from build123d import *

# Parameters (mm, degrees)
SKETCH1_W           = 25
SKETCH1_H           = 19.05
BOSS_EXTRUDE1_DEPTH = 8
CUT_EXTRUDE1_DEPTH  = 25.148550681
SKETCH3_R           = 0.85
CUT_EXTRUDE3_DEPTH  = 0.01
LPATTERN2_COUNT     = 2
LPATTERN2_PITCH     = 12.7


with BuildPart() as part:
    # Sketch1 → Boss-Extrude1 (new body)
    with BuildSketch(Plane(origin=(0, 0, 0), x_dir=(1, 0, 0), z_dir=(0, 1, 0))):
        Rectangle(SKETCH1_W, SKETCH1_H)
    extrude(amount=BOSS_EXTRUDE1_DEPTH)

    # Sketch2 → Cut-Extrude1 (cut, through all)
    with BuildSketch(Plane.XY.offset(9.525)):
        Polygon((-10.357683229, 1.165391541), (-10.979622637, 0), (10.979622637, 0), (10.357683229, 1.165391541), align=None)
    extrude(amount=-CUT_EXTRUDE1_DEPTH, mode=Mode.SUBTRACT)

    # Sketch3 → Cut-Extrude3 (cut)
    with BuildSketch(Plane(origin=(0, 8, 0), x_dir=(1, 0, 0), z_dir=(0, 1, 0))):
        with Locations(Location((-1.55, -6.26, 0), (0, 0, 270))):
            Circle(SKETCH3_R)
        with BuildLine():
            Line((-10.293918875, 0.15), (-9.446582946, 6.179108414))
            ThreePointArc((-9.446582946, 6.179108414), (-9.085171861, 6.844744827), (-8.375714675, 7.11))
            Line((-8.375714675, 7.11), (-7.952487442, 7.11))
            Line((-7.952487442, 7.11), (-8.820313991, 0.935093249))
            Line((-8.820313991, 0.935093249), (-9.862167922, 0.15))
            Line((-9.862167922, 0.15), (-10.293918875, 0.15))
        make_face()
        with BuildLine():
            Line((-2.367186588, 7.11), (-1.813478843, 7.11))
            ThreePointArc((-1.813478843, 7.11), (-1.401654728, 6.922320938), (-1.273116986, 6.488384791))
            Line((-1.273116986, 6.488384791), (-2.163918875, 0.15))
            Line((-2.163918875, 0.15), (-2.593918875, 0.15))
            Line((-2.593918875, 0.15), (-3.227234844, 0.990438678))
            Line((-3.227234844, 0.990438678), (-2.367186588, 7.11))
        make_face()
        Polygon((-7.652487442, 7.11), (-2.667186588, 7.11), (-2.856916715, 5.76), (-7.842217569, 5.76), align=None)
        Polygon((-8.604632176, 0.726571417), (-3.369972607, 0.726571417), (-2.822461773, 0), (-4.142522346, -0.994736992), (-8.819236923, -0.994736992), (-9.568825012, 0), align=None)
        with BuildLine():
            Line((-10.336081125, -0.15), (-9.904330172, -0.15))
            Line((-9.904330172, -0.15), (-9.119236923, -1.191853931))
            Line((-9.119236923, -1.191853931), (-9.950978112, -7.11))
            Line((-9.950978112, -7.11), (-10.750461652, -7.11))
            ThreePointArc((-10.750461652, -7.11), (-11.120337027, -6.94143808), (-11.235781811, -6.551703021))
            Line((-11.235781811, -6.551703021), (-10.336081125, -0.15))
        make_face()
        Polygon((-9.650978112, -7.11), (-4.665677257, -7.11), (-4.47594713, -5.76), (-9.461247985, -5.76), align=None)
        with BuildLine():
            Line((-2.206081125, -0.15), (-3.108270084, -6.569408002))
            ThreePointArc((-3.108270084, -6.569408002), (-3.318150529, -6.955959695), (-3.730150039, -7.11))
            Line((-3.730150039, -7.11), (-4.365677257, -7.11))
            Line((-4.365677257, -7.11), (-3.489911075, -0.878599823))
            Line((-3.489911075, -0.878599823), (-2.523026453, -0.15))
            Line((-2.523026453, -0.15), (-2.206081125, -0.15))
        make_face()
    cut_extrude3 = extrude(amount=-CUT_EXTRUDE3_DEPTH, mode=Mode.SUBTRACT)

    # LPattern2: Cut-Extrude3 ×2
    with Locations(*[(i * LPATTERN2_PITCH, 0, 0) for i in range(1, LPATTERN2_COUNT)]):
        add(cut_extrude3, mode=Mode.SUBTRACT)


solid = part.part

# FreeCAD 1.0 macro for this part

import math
import FreeCAD as App
import Part
import Sketcher
Q = App.Units.Quantity


def add_polygon(sketch, points):
    """Adds a closed chain of lines whose ends are joined by coincident constraints."""
    first, n = sketch.GeometryCount, len(points)
    for a, b in zip(points, points[1:] + points[:1]):
        sketch.addGeometry(Part.LineSegment(App.Vector(*a, 0), App.Vector(*b, 0)), False)
    for i in range(n):
        sketch.addConstraint(Sketcher.Constraint("Coincident", first + i, 2, first + (i + 1) % n, 1))

doc = App.newDocument("Part")
body = doc.addObject("PartDesign::Body", "Body")

sketch1 = body.newObject("Sketcher::SketchObject", "Sketch")
sketch1.AttachmentSupport = (doc.getObject("XZ_Plane"), [""])
sketch1.MapMode = "FlatFace"
add_polygon(sketch1, [(-12, -10), (-12, 10), (12, 10), (12, -10)])
sketch1.addConstraint([
    Sketcher.Constraint("Vertical", 0),
    Sketcher.Constraint("Horizontal", 1),
    Sketcher.Constraint("Vertical", 2),
    Sketcher.Constraint("Horizontal", 3),
    Sketcher.Constraint("Symmetric", 0, 2, 2, 2, -1, 1),
    Sketcher.Constraint("DistanceX", 1, 1, 1, 2, 25.0),
    Sketcher.Constraint("DistanceY", 0, 1, 0, 2, 19.05),
])
pad1 = body.newObject("PartDesign::Pad", "Pad")
pad1.Profile = sketch1
pad1.Length = 8
pad1.Reversed = True

sketch2 = body.newObject("Sketcher::SketchObject", "Sketch001")
sketch2.AttachmentSupport = (doc.getObject("XY_Plane"), [""])
sketch2.MapMode = "FlatFace"
sketch2.AttachmentOffset = App.Placement(App.Vector(0, 0, 9.525), App.Rotation())
add_polygon(sketch2, [(-10.4, 1.2), (-11, 0), (11, 0), (10.4, 1.2)])
sketch2.addConstraint([
    Sketcher.Constraint("Horizontal", 1),
    Sketcher.Constraint("Horizontal", 3),
    Sketcher.Constraint("Symmetric", 0, 2, 1, 2, -1, 1),
    Sketcher.Constraint("Equal", 0, 2),
    Sketcher.Constraint("DistanceX", 1, 1, 1, 2, 21.959245),
    Sketcher.Constraint("DistanceX", 3, 2, 3, 1, 20.715366),
    Sketcher.Constraint("DistanceY", -1, 1, 2, 2, 1.165392),
])
pocket1 = body.newObject("PartDesign::Pocket", "Pocket")
pocket1.Profile = sketch2
pocket1.Type = "ThroughAll"

sketch3 = body.newObject("Sketcher::SketchObject", "Sketch002")
sketch3.AttachmentSupport = (doc.getObject("XZ_Plane"), [""])
sketch3.MapMode = "FlatFace"
sketch3.AttachmentOffset = App.Placement(App.Vector(0, 0, -8), App.Rotation())
sketch3.addGeometry(Part.Circle(App.Vector(-1.55, 6.26, 0), App.Vector(0, 0, 1), 0.85), False)
sketch3.addGeometry(Part.LineSegment(App.Vector(-9.45, -6.18, 0), App.Vector(-10.29, -0.15, 0)), False)
sketch3.addGeometry(Part.LineSegment(App.Vector(-10.29, -0.15, 0), App.Vector(-9.86, -0.15, 0)), False)
sketch3.addGeometry(Part.LineSegment(App.Vector(-9.86, -0.15, 0), App.Vector(-8.82, -0.94, 0)), False)
sketch3.addGeometry(Part.LineSegment(App.Vector(-8.82, -0.94, 0), App.Vector(-7.95, -7.11, 0)), False)
sketch3.addGeometry(Part.LineSegment(App.Vector(-7.95, -7.11, 0), App.Vector(-8.38, -7.11, 0)), False)
sketch3.addGeometry(Part.ArcOfCircle(Part.Circle(App.Vector(-8.38, -6.03, 0), App.Vector(0, 0, 1), 1.08), math.radians(-172), math.radians(-90)), False)
sketch3.addGeometry(Part.LineSegment(App.Vector(-1.81, -7.11, 0), App.Vector(-2.37, -7.11, 0)), False)
sketch3.addGeometry(Part.LineSegment(App.Vector(-2.37, -7.11, 0), App.Vector(-3.23, -0.99, 0)), False)
sketch3.addGeometry(Part.LineSegment(App.Vector(-3.23, -0.99, 0), App.Vector(-2.59, -0.15, 0)), False)
sketch3.addGeometry(Part.LineSegment(App.Vector(-2.59, -0.15, 0), App.Vector(-2.16, -0.15, 0)), False)
sketch3.addGeometry(Part.LineSegment(App.Vector(-2.16, -0.15, 0), App.Vector(-1.27, -6.49, 0)), False)
sketch3.addGeometry(Part.ArcOfCircle(Part.Circle(App.Vector(-1.81, -6.56, 0), App.Vector(0, 0, 1), 0.55), math.radians(-90), math.radians(8)), False)
add_polygon(sketch3, [(-2.67, -7.11), (-7.65, -7.11), (-7.84, -5.76), (-2.86, -5.76)])
add_polygon(sketch3, [(-3.37, -0.73), (-8.6, -0.73), (-9.57, 0), (-8.82, 0.99), (-4.14, 0.99), (-2.82, 0)])
sketch3.addGeometry(Part.LineSegment(App.Vector(-9.9, 0.15, 0), App.Vector(-10.34, 0.15, 0)), False)
sketch3.addGeometry(Part.LineSegment(App.Vector(-10.34, 0.15, 0), App.Vector(-11.24, 6.55, 0)), False)
sketch3.addGeometry(Part.ArcOfCircle(Part.Circle(App.Vector(-10.75, 6.62, 0), App.Vector(0, 0, 1), 0.49), math.radians(90), math.radians(188)), False)
sketch3.addGeometry(Part.LineSegment(App.Vector(-10.75, 7.11, 0), App.Vector(-9.95, 7.11, 0)), False)
sketch3.addGeometry(Part.LineSegment(App.Vector(-9.95, 7.11, 0), App.Vector(-9.12, 1.19, 0)), False)
sketch3.addGeometry(Part.LineSegment(App.Vector(-9.12, 1.19, 0), App.Vector(-9.9, 0.15, 0)), False)
add_polygon(sketch3, [(-9.65, 7.11), (-4.67, 7.11), (-4.48, 5.76), (-9.46, 5.76)])
sketch3.addGeometry(Part.LineSegment(App.Vector(-3.11, 6.57, 0), App.Vector(-2.21, 0.15, 0)), False)
sketch3.addGeometry(Part.LineSegment(App.Vector(-2.21, 0.15, 0), App.Vector(-2.52, 0.15, 0)), False)
sketch3.addGeometry(Part.LineSegment(App.Vector(-2.52, 0.15, 0), App.Vector(-3.49, 0.88, 0)), False)
sketch3.addGeometry(Part.LineSegment(App.Vector(-3.49, 0.88, 0), App.Vector(-4.37, 7.11, 0)), False)
sketch3.addGeometry(Part.LineSegment(App.Vector(-4.37, 7.11, 0), App.Vector(-3.73, 7.11, 0)), False)
sketch3.addGeometry(Part.ArcOfCircle(Part.Circle(App.Vector(-3.73, 6.48, 0), App.Vector(0, 0, 1), 0.63), math.radians(8), math.radians(90)), False)
sketch3.addConstraint([
    Sketcher.Constraint("Coincident", 1, 2, 2, 1),
    Sketcher.Constraint("Coincident", 2, 2, 3, 1),
    Sketcher.Constraint("Coincident", 3, 2, 4, 1),
    Sketcher.Constraint("Coincident", 4, 2, 5, 1),
    Sketcher.Constraint("Tangent", 5, 2, 6, 2),
    Sketcher.Constraint("Tangent", 6, 1, 1, 1),
    Sketcher.Constraint("Coincident", 7, 2, 8, 1),
    Sketcher.Constraint("Coincident", 8, 2, 9, 1),
    Sketcher.Constraint("Coincident", 9, 2, 10, 1),
    Sketcher.Constraint("Coincident", 10, 2, 11, 1),
    Sketcher.Constraint("Tangent", 11, 2, 12, 2),
    Sketcher.Constraint("Tangent", 12, 1, 7, 1),
    Sketcher.Constraint("Coincident", 23, 2, 24, 1),
    Sketcher.Constraint("Tangent", 24, 2, 25, 2),
    Sketcher.Constraint("Tangent", 25, 1, 26, 1),
    Sketcher.Constraint("Coincident", 26, 2, 27, 1),
    Sketcher.Constraint("Coincident", 27, 2, 28, 1),
    Sketcher.Constraint("Coincident", 28, 2, 23, 1),
    Sketcher.Constraint("Coincident", 33, 2, 34, 1),
    Sketcher.Constraint("Coincident", 34, 2, 35, 1),
    Sketcher.Constraint("Coincident", 35, 2, 36, 1),
    Sketcher.Constraint("Coincident", 36, 2, 37, 1),
    Sketcher.Constraint("Tangent", 37, 2, 38, 2),
    Sketcher.Constraint("Tangent", 38, 1, 33, 1),
    Sketcher.Constraint("Horizontal", 2),
    Sketcher.Constraint("Horizontal", 5),
    Sketcher.Constraint("Horizontal", 7),
    Sketcher.Constraint("Horizontal", 10),
    Sketcher.Constraint("Horizontal", 13),
    Sketcher.Constraint("Horizontal", 15),
    Sketcher.Constraint("Horizontal", 17),
    Sketcher.Constraint("Horizontal", 20),
    Sketcher.Constraint("Horizontal", 23),
    Sketcher.Constraint("Horizontal", 26),
    Sketcher.Constraint("Horizontal", 29),
    Sketcher.Constraint("Horizontal", 31),
    Sketcher.Constraint("Horizontal", 34),
    Sketcher.Constraint("Horizontal", 37),
    Sketcher.Constraint("PointOnObject", 18, 2, -1),
    Sketcher.Constraint("PointOnObject", 21, 2, -1),
    Sketcher.Constraint("Parallel", 1, 4),
    Sketcher.Constraint("Parallel", 4, 8),
    Sketcher.Constraint("Perpendicular", 3, 9),
    Sketcher.Constraint("Parallel", 8, 11),
    Sketcher.Constraint("Parallel", 11, 14),
    Sketcher.Constraint("Parallel", 14, 16),
    Sketcher.Constraint("Perpendicular", 9, 18),
    Sketcher.Constraint("Perpendicular", 18, 19),
    Sketcher.Constraint("Perpendicular", 19, 21),
    Sketcher.Constraint("Perpendicular", 21, 22),
    Sketcher.Constraint("Parallel", 16, 24),
    Sketcher.Constraint("Parallel", 24, 27),
    Sketcher.Constraint("Parallel", 22, 28),
    Sketcher.Constraint("Parallel", 27, 30),
    Sketcher.Constraint("Parallel", 30, 32),
    Sketcher.Constraint("Parallel", 32, 33),
    Sketcher.Constraint("Perpendicular", 28, 35),
    Sketcher.Constraint("Parallel", 33, 36),
    Sketcher.Constraint("Horizontal", 5, 2, 7, 2),
    Sketcher.Constraint("Horizontal", 2, 2, 9, 2),
    Sketcher.Constraint("Horizontal", 12, 1, 13, 2),
    Sketcher.Constraint("Horizontal", 26, 2, 29, 2),
    Sketcher.Constraint("Horizontal", 28, 2, 33, 2),
    Sketcher.Constraint("Horizontal", 32, 2, 36, 2),
    Sketcher.Constraint("Equal", 2, 23),
    Sketcher.Constraint("Equal", 15, 29),
    Sketcher.Constraint("Equal", 3, 28),
    Sketcher.Constraint("Equal", 16, 30),
    Sketcher.Constraint("Diameter", 0, 1.7),
    Sketcher.Constraint("Angle", 1, Q("98 deg")),
    Sketcher.Constraint("Angle", 3, Q("-37 deg")),
    Sketcher.Constraint("DistanceX", 10, 1, 10, 2, 0.43),
    Sketcher.Constraint("DistanceX", 4, 2, 13, 2, 0.3),
    Sketcher.Constraint("DistanceX", 16, 2, 7, 2, 0.3),
    Sketcher.Constraint("DistanceY", 1, 2, 23, 2, 0.3),
    Sketcher.Constraint("DistanceX", 27, 2, 19, 2, 0.3),
    Sketcher.Constraint("DistanceY", 30, 2, 0, 3, 0.5),
    Sketcher.Constraint("DistanceX", 26, 2, 32, 2, 0.3),
    Sketcher.Constraint("DistanceX", 29, 2, 36, 2, 0.3),
    Sketcher.Constraint("DistanceX", 0, 3, -1, 1, 1.55),
    Sketcher.Constraint("DistanceY", -1, 1, 0, 3, 6.26),
    Sketcher.Constraint("DistanceY", 1, 2, -1, 1, 0.15),
    Sketcher.Constraint("DistanceY", 4, 2, -1, 1, 7.11),
    Sketcher.Constraint("DistanceY", 14, 2, -1, 1, 5.76),
    Sketcher.Constraint("Radius", 25, 0.49009),
    Sketcher.Constraint("Radius", 38, 0.627992),
    Sketcher.Constraint("DistanceX", 13, 2, 13, 1, 4.985301),
    Sketcher.Constraint("Radius", 6, 1.081392),
    Sketcher.Constraint("Radius", 12, 0.545672),
    Sketcher.Constraint("Distance", 8, 6.179702),
    Sketcher.Constraint("Distance", 18, 1.2073),
    Sketcher.Constraint("DistanceX", 2, 1, 2, 2, 0.431751),
    Sketcher.Constraint("DistanceX", 17, 2, 17, 1, 5.23466),
    Sketcher.Constraint("DistanceY", -1, 1, 35, 2, 0.8786),
    Sketcher.Constraint("DistanceX", 3, 2, 6, 3, 0.444599),
    Sketcher.Constraint("DistanceX", 20, 1, 20, 2, 4.676715),
    Sketcher.Constraint("DistanceX", 34, 2, 34, 1, 0.316945),
    Sketcher.Constraint("DistanceX", 12, 3, -1, 1, 1.813479),
    Sketcher.Constraint("DistanceX", 25, 3, -1, 1, 10.750462),
])
pocket2 = body.newObject("PartDesign::Pocket", "Pocket001")
pocket2.Profile = sketch3
pocket2.Length = 0.01
pocket2.Reversed = True
doc.recompute()

linearpattern = body.newObject("PartDesign::LinearPattern", "LinearPattern")
linearpattern.Originals = [pocket2]
linearpattern.Direction = (doc.getObject("X_Axis"), [""])
linearpattern.Mode = "offset"
linearpattern.Offset = 12.7
linearpattern.Occurrences = 2
body.Tip = linearpattern

doc.recompute()
